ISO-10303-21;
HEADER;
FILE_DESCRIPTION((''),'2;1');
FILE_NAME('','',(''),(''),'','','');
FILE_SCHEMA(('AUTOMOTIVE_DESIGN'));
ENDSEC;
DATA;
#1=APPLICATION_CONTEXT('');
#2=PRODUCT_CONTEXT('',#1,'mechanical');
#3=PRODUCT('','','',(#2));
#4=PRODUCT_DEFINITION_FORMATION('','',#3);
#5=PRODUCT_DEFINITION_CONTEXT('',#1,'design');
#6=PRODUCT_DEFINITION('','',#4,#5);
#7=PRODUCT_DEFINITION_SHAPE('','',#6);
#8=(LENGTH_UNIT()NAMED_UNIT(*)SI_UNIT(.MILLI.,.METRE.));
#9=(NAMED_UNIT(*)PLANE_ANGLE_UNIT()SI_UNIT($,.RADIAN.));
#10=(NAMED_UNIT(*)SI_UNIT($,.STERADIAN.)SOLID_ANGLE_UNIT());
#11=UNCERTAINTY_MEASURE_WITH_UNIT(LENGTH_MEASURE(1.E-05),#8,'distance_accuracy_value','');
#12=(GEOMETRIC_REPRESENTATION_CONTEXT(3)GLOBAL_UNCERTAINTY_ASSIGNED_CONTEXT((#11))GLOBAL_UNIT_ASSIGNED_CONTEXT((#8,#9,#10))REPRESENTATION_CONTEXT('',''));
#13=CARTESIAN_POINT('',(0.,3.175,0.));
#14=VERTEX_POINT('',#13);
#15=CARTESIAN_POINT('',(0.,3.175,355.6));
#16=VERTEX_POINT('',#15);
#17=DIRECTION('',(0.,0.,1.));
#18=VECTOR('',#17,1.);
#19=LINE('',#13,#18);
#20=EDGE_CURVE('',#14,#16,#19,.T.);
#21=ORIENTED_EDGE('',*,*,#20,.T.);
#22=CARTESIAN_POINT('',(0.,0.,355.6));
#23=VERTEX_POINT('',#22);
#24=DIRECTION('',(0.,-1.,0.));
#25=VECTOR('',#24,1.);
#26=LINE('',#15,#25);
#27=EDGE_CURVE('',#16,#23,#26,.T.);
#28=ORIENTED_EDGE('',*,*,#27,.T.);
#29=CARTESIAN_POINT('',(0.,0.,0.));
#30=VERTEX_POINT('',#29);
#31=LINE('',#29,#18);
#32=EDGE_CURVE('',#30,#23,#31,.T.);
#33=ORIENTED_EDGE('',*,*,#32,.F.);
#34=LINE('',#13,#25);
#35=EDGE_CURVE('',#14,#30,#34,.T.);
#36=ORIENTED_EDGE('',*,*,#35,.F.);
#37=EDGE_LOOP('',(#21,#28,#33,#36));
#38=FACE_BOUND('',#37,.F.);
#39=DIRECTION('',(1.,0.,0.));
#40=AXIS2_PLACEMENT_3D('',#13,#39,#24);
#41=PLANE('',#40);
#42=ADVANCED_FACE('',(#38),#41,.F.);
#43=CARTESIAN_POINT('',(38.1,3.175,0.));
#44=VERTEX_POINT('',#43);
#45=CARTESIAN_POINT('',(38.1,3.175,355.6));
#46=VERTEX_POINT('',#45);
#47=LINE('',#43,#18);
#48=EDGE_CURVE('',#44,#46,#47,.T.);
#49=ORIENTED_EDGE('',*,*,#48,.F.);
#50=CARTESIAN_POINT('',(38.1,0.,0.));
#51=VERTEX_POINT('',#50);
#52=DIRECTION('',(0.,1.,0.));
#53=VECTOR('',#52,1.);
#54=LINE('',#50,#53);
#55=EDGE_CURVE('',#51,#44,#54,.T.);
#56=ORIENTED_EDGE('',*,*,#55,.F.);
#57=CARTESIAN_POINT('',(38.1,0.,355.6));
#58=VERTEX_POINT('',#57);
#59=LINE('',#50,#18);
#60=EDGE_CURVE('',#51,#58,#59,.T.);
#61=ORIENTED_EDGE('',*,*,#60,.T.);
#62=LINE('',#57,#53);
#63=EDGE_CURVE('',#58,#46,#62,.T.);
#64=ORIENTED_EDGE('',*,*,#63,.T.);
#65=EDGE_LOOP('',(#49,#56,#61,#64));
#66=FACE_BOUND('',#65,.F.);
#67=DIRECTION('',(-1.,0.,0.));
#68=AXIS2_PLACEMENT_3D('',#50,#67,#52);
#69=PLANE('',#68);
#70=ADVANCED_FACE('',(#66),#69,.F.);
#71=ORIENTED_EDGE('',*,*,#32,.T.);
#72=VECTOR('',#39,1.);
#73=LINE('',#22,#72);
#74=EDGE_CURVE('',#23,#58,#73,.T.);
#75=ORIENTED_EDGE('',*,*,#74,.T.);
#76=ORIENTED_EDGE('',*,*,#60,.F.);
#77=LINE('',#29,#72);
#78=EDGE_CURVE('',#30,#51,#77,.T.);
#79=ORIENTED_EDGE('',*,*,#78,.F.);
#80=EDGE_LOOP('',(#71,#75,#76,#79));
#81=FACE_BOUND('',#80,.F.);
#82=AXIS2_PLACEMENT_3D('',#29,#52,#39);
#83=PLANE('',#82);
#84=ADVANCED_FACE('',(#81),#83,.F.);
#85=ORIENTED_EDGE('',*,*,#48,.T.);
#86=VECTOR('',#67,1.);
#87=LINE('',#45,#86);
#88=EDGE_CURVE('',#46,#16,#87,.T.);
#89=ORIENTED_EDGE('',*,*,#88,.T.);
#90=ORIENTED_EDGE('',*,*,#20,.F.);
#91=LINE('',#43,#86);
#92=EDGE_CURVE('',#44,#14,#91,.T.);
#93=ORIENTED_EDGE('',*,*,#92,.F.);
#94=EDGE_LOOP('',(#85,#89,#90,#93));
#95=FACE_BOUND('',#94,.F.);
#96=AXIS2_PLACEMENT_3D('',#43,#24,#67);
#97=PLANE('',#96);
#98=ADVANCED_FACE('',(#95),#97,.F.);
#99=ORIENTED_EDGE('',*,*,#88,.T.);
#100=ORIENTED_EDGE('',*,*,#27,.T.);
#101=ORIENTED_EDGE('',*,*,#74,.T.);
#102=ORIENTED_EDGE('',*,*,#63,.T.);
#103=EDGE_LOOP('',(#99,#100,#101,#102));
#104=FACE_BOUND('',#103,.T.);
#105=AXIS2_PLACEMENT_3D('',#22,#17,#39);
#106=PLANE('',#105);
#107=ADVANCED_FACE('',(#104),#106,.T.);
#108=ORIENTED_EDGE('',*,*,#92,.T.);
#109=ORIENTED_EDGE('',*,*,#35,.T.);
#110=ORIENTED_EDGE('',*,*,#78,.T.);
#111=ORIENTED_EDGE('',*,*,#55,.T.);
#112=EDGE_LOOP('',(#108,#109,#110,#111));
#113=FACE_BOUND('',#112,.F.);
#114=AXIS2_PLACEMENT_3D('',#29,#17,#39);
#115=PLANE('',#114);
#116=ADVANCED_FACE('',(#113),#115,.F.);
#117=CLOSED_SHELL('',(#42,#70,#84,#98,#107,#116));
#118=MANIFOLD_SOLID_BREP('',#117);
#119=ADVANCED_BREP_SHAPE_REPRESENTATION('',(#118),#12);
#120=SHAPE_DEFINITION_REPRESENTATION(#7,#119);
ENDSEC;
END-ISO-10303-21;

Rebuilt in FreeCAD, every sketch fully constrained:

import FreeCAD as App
import Part
import Sketcher

V = App.Vector
Q = App.Units.Quantity

doc = App.newDocument("Part")
body = doc.addObject("PartDesign::Body", "Body")

sketch1 = body.newObject("Sketcher::SketchObject", "Sketch")
sketch1.AttachmentSupport = (doc.getObject("XY_Plane"), [""])
sketch1.MapMode = "FlatFace"
sketch1.addGeometry([
    Part.LineSegment(V(0, 3.175, 0), V(0, 0, 0)),
    Part.LineSegment(V(0, 0, 0), V(38.1, 0, 0)),
    Part.LineSegment(V(38.1, 0, 0), V(38.1, 3.175, 0)),
    Part.LineSegment(V(38.1, 3.175, 0), V(0, 3.175, 0)),
], False)
sketch1.addConstraint([
    Sketcher.Constraint("Coincident", 0, 2, 1, 1),
    Sketcher.Constraint("Coincident", 1, 2, 2, 1),
    Sketcher.Constraint("Coincident", 2, 2, 3, 1),
    Sketcher.Constraint("Coincident", 3, 2, 0, 1),
    Sketcher.Constraint("Vertical", 0),
    Sketcher.Constraint("Horizontal", 1),
    Sketcher.Constraint("Vertical", 2),
    Sketcher.Constraint("Horizontal", 3),
    Sketcher.Constraint("Coincident", 0, 2, -1, 1),
    Sketcher.Constraint("DistanceX", 1, 1, 1, 2, Q("1.5 in")),
    Sketcher.Constraint("DistanceY", 0, 2, 0, 1, Q("0.125 in")),
])
pad1 = body.newObject("PartDesign::Pad", "Pad")
pad1.Profile = sketch1
pad1.Length = Q("14 in")

doc.recompute()
